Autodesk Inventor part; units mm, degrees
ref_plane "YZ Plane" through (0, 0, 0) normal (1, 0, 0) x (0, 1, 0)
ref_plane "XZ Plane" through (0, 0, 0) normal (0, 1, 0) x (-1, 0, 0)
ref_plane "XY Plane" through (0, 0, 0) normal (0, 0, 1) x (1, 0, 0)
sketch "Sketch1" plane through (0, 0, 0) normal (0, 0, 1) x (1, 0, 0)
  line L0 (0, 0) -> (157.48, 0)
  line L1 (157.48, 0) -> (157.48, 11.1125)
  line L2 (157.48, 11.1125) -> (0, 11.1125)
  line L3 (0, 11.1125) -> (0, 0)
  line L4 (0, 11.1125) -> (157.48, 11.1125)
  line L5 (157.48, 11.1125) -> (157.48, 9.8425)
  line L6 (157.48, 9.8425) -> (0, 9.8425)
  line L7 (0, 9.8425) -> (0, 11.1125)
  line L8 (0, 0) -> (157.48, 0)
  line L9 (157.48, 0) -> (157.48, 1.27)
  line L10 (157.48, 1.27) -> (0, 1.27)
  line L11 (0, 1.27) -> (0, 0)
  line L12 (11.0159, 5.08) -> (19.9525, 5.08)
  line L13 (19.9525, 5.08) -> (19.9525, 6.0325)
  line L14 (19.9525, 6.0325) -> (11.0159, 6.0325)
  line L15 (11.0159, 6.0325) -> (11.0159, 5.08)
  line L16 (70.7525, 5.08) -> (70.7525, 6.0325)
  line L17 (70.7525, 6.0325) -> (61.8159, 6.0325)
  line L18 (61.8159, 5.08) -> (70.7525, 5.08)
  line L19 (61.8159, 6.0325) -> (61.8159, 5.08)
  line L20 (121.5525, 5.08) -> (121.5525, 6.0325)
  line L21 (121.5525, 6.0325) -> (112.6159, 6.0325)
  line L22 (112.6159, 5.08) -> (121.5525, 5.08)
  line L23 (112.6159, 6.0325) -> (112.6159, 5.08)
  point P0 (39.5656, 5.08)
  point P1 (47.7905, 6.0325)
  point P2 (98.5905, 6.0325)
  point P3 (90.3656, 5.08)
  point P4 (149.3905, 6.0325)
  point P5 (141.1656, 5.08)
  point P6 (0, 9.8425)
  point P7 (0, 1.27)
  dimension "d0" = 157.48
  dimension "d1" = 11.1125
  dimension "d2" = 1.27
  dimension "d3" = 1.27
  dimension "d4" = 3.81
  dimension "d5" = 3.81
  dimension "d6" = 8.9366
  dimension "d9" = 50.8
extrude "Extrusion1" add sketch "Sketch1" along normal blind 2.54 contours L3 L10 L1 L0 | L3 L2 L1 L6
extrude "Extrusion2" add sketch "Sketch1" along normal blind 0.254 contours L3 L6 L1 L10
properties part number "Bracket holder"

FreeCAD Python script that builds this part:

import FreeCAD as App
import Part
import Sketcher

V = App.Vector
Q = App.Units.Quantity

doc = App.newDocument("Part")
body = doc.addObject("PartDesign::Body", "Body")
body.AllowCompound = True

# Sketch on XY plane
sketch1 = body.newObject("Sketcher::SketchObject", "Sketch")
sketch1.AttachmentSupport = (doc.getObject("XY_Plane"), [""])
sketch1.MapMode = "FlatFace"
sketch1.addGeometry([
    Part.LineSegment(V(0, 1.27, 0), V(0, 0, 0)),  # 0
    Part.LineSegment(V(0, 0, 0), V(157.48, 0, 0)),  # 1
    Part.LineSegment(V(157.48, 0, 0), V(157.48, 1.27, 0)),  # 2
    Part.LineSegment(V(157.48, 1.27, 0), V(0, 1.27, 0)),  # 3
    Part.LineSegment(V(0, 11.1125, 0), V(0, 9.8425, 0)),  # 4
    Part.LineSegment(V(0, 9.8425, 0), V(157.48, 9.8425, 0)),  # 5
    Part.LineSegment(V(157.48, 9.8425, 0), V(157.48, 11.1125, 0)),  # 6
    Part.LineSegment(V(157.48, 11.1125, 0), V(0, 11.1125, 0)),  # 7
], False)
sketch1.addConstraint([
    Sketcher.Constraint("Coincident", 0, 2, 1, 1),
    Sketcher.Constraint("Coincident", 1, 2, 2, 1),
    Sketcher.Constraint("Coincident", 2, 2, 3, 1),
    Sketcher.Constraint("Coincident", 3, 2, 0, 1),
    Sketcher.Constraint("Coincident", 4, 2, 5, 1),
    Sketcher.Constraint("Coincident", 5, 2, 6, 1),
    Sketcher.Constraint("Coincident", 6, 2, 7, 1),
    Sketcher.Constraint("Coincident", 7, 2, 4, 1),
    Sketcher.Constraint("Vertical", 0),
    Sketcher.Constraint("Horizontal", 1),
    Sketcher.Constraint("Vertical", 2),
    Sketcher.Constraint("Horizontal", 3),
    Sketcher.Constraint("Vertical", 4),
    Sketcher.Constraint("Horizontal", 5),
    Sketcher.Constraint("Vertical", 6),
    Sketcher.Constraint("Horizontal", 7),
    Sketcher.Constraint("Coincident", 0, 2, -1, 1),
    Sketcher.Constraint("PointOnObject", 4, 2, -2),
    Sketcher.Constraint("Vertical", 2, 2, 5, 2),
    Sketcher.Constraint("Equal", 2, 4),
    Sketcher.Constraint("DistanceX", 1, 1, 1, 2, Q("6.2 in")),
    Sketcher.Constraint("DistanceY", 0, 2, 0, 1, Q("0.05 in")),
    Sketcher.Constraint("DistanceY", -1, 1, 6, 2, Q("0.4375 in")),
])
pad1 = body.newObject("PartDesign::Pad", "Pad")
pad1.Profile = sketch1
pad1.Length = Q("0.1 in")

# Sketch on XY plane
sketch2 = body.newObject("Sketcher::SketchObject", "Sketch001")
sketch2.AttachmentSupport = (doc.getObject("XY_Plane"), [""])
sketch2.MapMode = "FlatFace"
sketch2.addGeometry([
    Part.LineSegment(V(0, 9.8425, 0), V(0, 1.27, 0)),  # 0
    Part.LineSegment(V(0, 1.27, 0), V(157.48, 1.27, 0)),  # 1
    Part.LineSegment(V(157.48, 1.27, 0), V(157.48, 9.8425, 0)),  # 2
    Part.LineSegment(V(157.48, 9.8425, 0), V(0, 9.8425, 0)),  # 3
    Part.LineSegment(V(19.9525, 5.08, 0), V(11.0159, 5.08, 0)),  # 4
    Part.LineSegment(V(11.0159, 5.08, 0), V(11.0159, 6.0325, 0)),  # 5
    Part.LineSegment(V(11.0159, 6.0325, 0), V(19.9525, 6.0325, 0)),  # 6
    Part.LineSegment(V(19.9525, 6.0325, 0), V(19.9525, 5.08, 0)),  # 7
    Part.LineSegment(V(70.7525, 6.0325, 0), V(70.7525, 5.08, 0)),  # 8
    Part.LineSegment(V(70.7525, 5.08, 0), V(61.8159, 5.08, 0)),  # 9
    Part.LineSegment(V(61.8159, 5.08, 0), V(61.8159, 6.0325, 0)),  # 10
    Part.LineSegment(V(61.8159, 6.0325, 0), V(70.7525, 6.0325, 0)),  # 11
    Part.LineSegment(V(121.5525, 6.0325, 0), V(121.5525, 5.08, 0)),  # 12
    Part.LineSegment(V(121.5525, 5.08, 0), V(112.6159, 5.08, 0)),  # 13
    Part.LineSegment(V(112.6159, 5.08, 0), V(112.6159, 6.0325, 0)),  # 14
    Part.LineSegment(V(112.6159, 6.0325, 0), V(121.5525, 6.0325, 0)),  # 15
], False)
sketch2.addConstraint([
    Sketcher.Constraint("Coincident", 0, 2, 1, 1),
    Sketcher.Constraint("Coincident", 1, 2, 2, 1),
    Sketcher.Constraint("Coincident", 2, 2, 3, 1),
    Sketcher.Constraint("Coincident", 3, 2, 0, 1),
    Sketcher.Constraint("Coincident", 4, 2, 5, 1),
    Sketcher.Constraint("Coincident", 5, 2, 6, 1),
    Sketcher.Constraint("Coincident", 6, 2, 7, 1),
    Sketcher.Constraint("Coincident", 7, 2, 4, 1),
    Sketcher.Constraint("Coincident", 8, 2, 9, 1),
    Sketcher.Constraint("Coincident", 9, 2, 10, 1),
    Sketcher.Constraint("Coincident", 10, 2, 11, 1),
    Sketcher.Constraint("Coincident", 11, 2, 8, 1),
    Sketcher.Constraint("Coincident", 12, 2, 13, 1),
    Sketcher.Constraint("Coincident", 13, 2, 14, 1),
    Sketcher.Constraint("Coincident", 14, 2, 15, 1),
    Sketcher.Constraint("Coincident", 15, 2, 12, 1),
    Sketcher.Constraint("Vertical", 0),
    Sketcher.Constraint("Horizontal", 1),
    Sketcher.Constraint("Vertical", 2),
    Sketcher.Constraint("Horizontal", 3),
    Sketcher.Constraint("Horizontal", 4),
    Sketcher.Constraint("Vertical", 5),
    Sketcher.Constraint("Horizontal", 6),
    Sketcher.Constraint("Vertical", 7),
    Sketcher.Constraint("Vertical", 8),
    Sketcher.Constraint("Horizontal", 9),
    Sketcher.Constraint("Vertical", 10),
    Sketcher.Constraint("Horizontal", 11),
    Sketcher.Constraint("Vertical", 12),
    Sketcher.Constraint("Horizontal", 13),
    Sketcher.Constraint("Vertical", 14),
    Sketcher.Constraint("Horizontal", 15),
    Sketcher.Constraint("PointOnObject", 0, 2, -2),
    Sketcher.Constraint("Horizontal", 7, 2, 8, 2),
    Sketcher.Constraint("Horizontal", 6, 2, 10, 2),
    Sketcher.Constraint("Horizontal", 9, 2, 12, 2),
    Sketcher.Constraint("Horizontal", 11, 2, 14, 2),
    Sketcher.Constraint("Equal", 6, 9),
    Sketcher.Constraint("Equal", 11, 13),
    Sketcher.Constraint("DistanceX", 1, 1, 1, 2, Q("6.2 in")),
    Sketcher.Constraint("DistanceX", 7, 2, 8, 2, Q("2 in")),
    Sketcher.Constraint("DistanceX", 8, 2, 12, 2, Q("2 in")),
    Sketcher.Constraint("DistanceY", -1, 1, 0, 2, Q("0.05 in")),
    Sketcher.Constraint("DistanceY", 0, 2, 4, 2, Q("0.15 in")),
    Sketcher.Constraint("DistanceY", 5, 2, 3, 2, Q("0.15 in")),
    Sketcher.Constraint("DistanceX", 4, 2, 4, 1, Q("8.9366 mm")),
    Sketcher.Constraint("DistanceY", 0, 2, 0, 1, Q("0.3375 in")),
    Sketcher.Constraint("DistanceX", -1, 1, 4, 2, Q("0.4337 in")),
])
pad2 = body.newObject("PartDesign::Pad", "Pad001")
pad2.Profile = sketch2
pad2.Length = Q("0.01 in")

doc.recompute()
